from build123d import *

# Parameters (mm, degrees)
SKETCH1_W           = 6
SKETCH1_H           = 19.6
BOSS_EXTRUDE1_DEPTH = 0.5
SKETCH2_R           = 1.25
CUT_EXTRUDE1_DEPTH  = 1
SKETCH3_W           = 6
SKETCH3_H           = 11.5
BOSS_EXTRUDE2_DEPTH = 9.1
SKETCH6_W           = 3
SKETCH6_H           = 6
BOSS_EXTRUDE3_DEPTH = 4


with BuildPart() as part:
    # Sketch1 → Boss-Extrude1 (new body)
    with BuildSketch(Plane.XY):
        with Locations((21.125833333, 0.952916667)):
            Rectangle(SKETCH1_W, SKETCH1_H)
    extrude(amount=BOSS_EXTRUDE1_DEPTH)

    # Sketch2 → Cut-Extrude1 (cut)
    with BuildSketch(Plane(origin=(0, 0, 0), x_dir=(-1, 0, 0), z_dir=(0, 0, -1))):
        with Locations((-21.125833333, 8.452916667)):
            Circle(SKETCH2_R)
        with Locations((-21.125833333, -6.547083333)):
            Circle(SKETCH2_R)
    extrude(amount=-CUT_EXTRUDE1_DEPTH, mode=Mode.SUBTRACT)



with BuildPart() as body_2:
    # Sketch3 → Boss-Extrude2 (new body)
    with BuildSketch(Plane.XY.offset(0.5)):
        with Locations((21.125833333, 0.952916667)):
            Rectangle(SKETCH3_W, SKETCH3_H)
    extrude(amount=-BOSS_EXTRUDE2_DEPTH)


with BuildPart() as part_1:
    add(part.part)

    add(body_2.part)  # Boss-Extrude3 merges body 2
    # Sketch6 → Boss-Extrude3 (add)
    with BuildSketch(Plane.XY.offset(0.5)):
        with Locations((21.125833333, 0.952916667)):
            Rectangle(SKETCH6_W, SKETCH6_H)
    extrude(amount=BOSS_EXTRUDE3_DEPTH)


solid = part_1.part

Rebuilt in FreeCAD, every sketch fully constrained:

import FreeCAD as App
import Part
import Sketcher
Q = App.Units.Quantity

doc = App.newDocument("Part")
body = doc.addObject("PartDesign::Body", "Body")

sketch1 = body.newObject("Sketcher::SketchObject", "Sketch")
sketch1.AttachmentSupport = (doc.getObject("XY_Plane"), [""])
sketch1.MapMode = "FlatFace"
sketch1.addGeometry([
    Part.LineSegment(App.Vector(18, 11, 0), App.Vector(18, -9, 0)),
    Part.LineSegment(App.Vector(18, -9, 0), App.Vector(24, -9, 0)),
    Part.LineSegment(App.Vector(24, -9, 0), App.Vector(24, 11, 0)),
    Part.LineSegment(App.Vector(24, 11, 0), App.Vector(18, 11, 0)),
], False)
sketch1.addConstraint([
    Sketcher.Constraint("Coincident", 0, 2, 1, 1),
    Sketcher.Constraint("Coincident", 1, 2, 2, 1),
    Sketcher.Constraint("Coincident", 2, 2, 3, 1),
    Sketcher.Constraint("Coincident", 3, 2, 0, 1),
    Sketcher.Constraint("Vertical", 0),
    Sketcher.Constraint("Horizontal", 1),
    Sketcher.Constraint("Vertical", 2),
    Sketcher.Constraint("Horizontal", 3),
    Sketcher.Constraint("DistanceX", 1, 1, 1, 2, Q("6 mm")),
    Sketcher.Constraint("DistanceY", 0, 2, 0, 1, Q("19.6 mm")),
    Sketcher.Constraint("DistanceX", -1, 1, 0, 2, Q("18.125833 mm")),
    Sketcher.Constraint("DistanceY", 0, 2, -1, 1, Q("8.847083 mm")),
])
pad1 = body.newObject("PartDesign::Pad", "Pad")
pad1.Profile = sketch1
pad1.Length = 0.5

sketch2 = body.newObject("Sketcher::SketchObject", "Sketch001")
sketch2.AttachmentSupport = (doc.getObject("XY_Plane"), [""])
sketch2.MapMode = "FlatFace"
sketch2.addGeometry([
    Part.Circle(App.Vector(21.1, 8.5, 0), App.Vector(0, 0, 1), 1.2),
    Part.Circle(App.Vector(21.1, -6.5, 0), App.Vector(0, 0, 1), 1.2),
], False)
sketch2.addConstraint([
    Sketcher.Constraint("Equal", 0, 1),
    Sketcher.Constraint("Vertical", 0, 3, 1, 3),
    Sketcher.Constraint("Diameter", 0, Q("2.5 mm")),
    Sketcher.Constraint("DistanceY", 1, 3, 0, 3, Q("15 mm")),
    Sketcher.Constraint("DistanceX", -1, 1, 0, 3, Q("21.125833 mm")),
    Sketcher.Constraint("DistanceY", -1, 1, 0, 3, Q("8.452917 mm")),
])
pocket1 = body.newObject("PartDesign::Pocket", "Pocket")
pocket1.Profile = sketch2
pocket1.Length = 1
pocket1.Reversed = True
body2 = doc.addObject("PartDesign::Body", "Body001")

sketch3 = body2.newObject("Sketcher::SketchObject", "Sketch002")
sketch3.AttachmentSupport = (doc.getObject("XY_Plane001"), [""])
sketch3.MapMode = "FlatFace"
sketch3.AttachmentOffset = App.Placement(App.Vector(0, 0, 0.5), App.Rotation())
sketch3.addGeometry([
    Part.LineSegment(App.Vector(18, 7, 0), App.Vector(18, -5, 0)),
    Part.LineSegment(App.Vector(18, -5, 0), App.Vector(24, -5, 0)),
    Part.LineSegment(App.Vector(24, -5, 0), App.Vector(24, 7, 0)),
    Part.LineSegment(App.Vector(24, 7, 0), App.Vector(18, 7, 0)),
], False)
sketch3.addConstraint([
    Sketcher.Constraint("Coincident", 0, 2, 1, 1),
    Sketcher.Constraint("Coincident", 1, 2, 2, 1),
    Sketcher.Constraint("Coincident", 2, 2, 3, 1),
    Sketcher.Constraint("Coincident", 3, 2, 0, 1),
    Sketcher.Constraint("Vertical", 0),
    Sketcher.Constraint("Horizontal", 1),
    Sketcher.Constraint("Vertical", 2),
    Sketcher.Constraint("Horizontal", 3),
    Sketcher.Constraint("DistanceX", 1, 1, 1, 2, Q("6 mm")),
    Sketcher.Constraint("DistanceY", 0, 2, 0, 1, Q("11.5 mm")),
    Sketcher.Constraint("DistanceX", -1, 1, 0, 2, Q("18.125833 mm")),
    Sketcher.Constraint("DistanceY", 0, 2, -1, 1, Q("4.797083 mm")),
])
pad2 = body2.newObject("PartDesign::Pad", "Pad001")
pad2.Profile = sketch3
pad2.Length = 9.1
pad2.Reversed = True
doc.recompute()

boolean = body.newObject("PartDesign::Boolean", "Boolean")
boolean.Type = "Fuse"
boolean.addObjects([body2])

sketch4 = body.newObject("Sketcher::SketchObject", "Sketch003")
sketch4.AttachmentSupport = (doc.getObject("XY_Plane"), [""])
sketch4.MapMode = "FlatFace"
sketch4.AttachmentOffset = App.Placement(App.Vector(0, 0, 0.5), App.Rotation())
sketch4.addGeometry([
    Part.LineSegment(App.Vector(19.6, 4, 0), App.Vector(19.6, -2, 0)),
    Part.LineSegment(App.Vector(19.6, -2, 0), App.Vector(22.6, -2, 0)),
    Part.LineSegment(App.Vector(22.6, -2, 0), App.Vector(22.6, 4, 0)),
    Part.LineSegment(App.Vector(22.6, 4, 0), App.Vector(19.6, 4, 0)),
], False)
sketch4.addConstraint([
    Sketcher.Constraint("Coincident", 0, 2, 1, 1),
    Sketcher.Constraint("Coincident", 1, 2, 2, 1),
    Sketcher.Constraint("Coincident", 2, 2, 3, 1),
    Sketcher.Constraint("Coincident", 3, 2, 0, 1),
    Sketcher.Constraint("Vertical", 0),
    Sketcher.Constraint("Horizontal", 1),
    Sketcher.Constraint("Vertical", 2),
    Sketcher.Constraint("Horizontal", 3),
    Sketcher.Constraint("DistanceX", 1, 1, 1, 2, Q("3 mm")),
    Sketcher.Constraint("DistanceY", 0, 2, 0, 1, Q("6 mm")),
    Sketcher.Constraint("DistanceX", -1, 1, 0, 2, Q("19.625833 mm")),
    Sketcher.Constraint("DistanceY", 0, 2, -1, 1, Q("2.047083 mm")),
])
pad3 = body.newObject("PartDesign::Pad", "Pad002")
pad3.Profile = sketch4
pad3.Length = 4

doc.recompute()
